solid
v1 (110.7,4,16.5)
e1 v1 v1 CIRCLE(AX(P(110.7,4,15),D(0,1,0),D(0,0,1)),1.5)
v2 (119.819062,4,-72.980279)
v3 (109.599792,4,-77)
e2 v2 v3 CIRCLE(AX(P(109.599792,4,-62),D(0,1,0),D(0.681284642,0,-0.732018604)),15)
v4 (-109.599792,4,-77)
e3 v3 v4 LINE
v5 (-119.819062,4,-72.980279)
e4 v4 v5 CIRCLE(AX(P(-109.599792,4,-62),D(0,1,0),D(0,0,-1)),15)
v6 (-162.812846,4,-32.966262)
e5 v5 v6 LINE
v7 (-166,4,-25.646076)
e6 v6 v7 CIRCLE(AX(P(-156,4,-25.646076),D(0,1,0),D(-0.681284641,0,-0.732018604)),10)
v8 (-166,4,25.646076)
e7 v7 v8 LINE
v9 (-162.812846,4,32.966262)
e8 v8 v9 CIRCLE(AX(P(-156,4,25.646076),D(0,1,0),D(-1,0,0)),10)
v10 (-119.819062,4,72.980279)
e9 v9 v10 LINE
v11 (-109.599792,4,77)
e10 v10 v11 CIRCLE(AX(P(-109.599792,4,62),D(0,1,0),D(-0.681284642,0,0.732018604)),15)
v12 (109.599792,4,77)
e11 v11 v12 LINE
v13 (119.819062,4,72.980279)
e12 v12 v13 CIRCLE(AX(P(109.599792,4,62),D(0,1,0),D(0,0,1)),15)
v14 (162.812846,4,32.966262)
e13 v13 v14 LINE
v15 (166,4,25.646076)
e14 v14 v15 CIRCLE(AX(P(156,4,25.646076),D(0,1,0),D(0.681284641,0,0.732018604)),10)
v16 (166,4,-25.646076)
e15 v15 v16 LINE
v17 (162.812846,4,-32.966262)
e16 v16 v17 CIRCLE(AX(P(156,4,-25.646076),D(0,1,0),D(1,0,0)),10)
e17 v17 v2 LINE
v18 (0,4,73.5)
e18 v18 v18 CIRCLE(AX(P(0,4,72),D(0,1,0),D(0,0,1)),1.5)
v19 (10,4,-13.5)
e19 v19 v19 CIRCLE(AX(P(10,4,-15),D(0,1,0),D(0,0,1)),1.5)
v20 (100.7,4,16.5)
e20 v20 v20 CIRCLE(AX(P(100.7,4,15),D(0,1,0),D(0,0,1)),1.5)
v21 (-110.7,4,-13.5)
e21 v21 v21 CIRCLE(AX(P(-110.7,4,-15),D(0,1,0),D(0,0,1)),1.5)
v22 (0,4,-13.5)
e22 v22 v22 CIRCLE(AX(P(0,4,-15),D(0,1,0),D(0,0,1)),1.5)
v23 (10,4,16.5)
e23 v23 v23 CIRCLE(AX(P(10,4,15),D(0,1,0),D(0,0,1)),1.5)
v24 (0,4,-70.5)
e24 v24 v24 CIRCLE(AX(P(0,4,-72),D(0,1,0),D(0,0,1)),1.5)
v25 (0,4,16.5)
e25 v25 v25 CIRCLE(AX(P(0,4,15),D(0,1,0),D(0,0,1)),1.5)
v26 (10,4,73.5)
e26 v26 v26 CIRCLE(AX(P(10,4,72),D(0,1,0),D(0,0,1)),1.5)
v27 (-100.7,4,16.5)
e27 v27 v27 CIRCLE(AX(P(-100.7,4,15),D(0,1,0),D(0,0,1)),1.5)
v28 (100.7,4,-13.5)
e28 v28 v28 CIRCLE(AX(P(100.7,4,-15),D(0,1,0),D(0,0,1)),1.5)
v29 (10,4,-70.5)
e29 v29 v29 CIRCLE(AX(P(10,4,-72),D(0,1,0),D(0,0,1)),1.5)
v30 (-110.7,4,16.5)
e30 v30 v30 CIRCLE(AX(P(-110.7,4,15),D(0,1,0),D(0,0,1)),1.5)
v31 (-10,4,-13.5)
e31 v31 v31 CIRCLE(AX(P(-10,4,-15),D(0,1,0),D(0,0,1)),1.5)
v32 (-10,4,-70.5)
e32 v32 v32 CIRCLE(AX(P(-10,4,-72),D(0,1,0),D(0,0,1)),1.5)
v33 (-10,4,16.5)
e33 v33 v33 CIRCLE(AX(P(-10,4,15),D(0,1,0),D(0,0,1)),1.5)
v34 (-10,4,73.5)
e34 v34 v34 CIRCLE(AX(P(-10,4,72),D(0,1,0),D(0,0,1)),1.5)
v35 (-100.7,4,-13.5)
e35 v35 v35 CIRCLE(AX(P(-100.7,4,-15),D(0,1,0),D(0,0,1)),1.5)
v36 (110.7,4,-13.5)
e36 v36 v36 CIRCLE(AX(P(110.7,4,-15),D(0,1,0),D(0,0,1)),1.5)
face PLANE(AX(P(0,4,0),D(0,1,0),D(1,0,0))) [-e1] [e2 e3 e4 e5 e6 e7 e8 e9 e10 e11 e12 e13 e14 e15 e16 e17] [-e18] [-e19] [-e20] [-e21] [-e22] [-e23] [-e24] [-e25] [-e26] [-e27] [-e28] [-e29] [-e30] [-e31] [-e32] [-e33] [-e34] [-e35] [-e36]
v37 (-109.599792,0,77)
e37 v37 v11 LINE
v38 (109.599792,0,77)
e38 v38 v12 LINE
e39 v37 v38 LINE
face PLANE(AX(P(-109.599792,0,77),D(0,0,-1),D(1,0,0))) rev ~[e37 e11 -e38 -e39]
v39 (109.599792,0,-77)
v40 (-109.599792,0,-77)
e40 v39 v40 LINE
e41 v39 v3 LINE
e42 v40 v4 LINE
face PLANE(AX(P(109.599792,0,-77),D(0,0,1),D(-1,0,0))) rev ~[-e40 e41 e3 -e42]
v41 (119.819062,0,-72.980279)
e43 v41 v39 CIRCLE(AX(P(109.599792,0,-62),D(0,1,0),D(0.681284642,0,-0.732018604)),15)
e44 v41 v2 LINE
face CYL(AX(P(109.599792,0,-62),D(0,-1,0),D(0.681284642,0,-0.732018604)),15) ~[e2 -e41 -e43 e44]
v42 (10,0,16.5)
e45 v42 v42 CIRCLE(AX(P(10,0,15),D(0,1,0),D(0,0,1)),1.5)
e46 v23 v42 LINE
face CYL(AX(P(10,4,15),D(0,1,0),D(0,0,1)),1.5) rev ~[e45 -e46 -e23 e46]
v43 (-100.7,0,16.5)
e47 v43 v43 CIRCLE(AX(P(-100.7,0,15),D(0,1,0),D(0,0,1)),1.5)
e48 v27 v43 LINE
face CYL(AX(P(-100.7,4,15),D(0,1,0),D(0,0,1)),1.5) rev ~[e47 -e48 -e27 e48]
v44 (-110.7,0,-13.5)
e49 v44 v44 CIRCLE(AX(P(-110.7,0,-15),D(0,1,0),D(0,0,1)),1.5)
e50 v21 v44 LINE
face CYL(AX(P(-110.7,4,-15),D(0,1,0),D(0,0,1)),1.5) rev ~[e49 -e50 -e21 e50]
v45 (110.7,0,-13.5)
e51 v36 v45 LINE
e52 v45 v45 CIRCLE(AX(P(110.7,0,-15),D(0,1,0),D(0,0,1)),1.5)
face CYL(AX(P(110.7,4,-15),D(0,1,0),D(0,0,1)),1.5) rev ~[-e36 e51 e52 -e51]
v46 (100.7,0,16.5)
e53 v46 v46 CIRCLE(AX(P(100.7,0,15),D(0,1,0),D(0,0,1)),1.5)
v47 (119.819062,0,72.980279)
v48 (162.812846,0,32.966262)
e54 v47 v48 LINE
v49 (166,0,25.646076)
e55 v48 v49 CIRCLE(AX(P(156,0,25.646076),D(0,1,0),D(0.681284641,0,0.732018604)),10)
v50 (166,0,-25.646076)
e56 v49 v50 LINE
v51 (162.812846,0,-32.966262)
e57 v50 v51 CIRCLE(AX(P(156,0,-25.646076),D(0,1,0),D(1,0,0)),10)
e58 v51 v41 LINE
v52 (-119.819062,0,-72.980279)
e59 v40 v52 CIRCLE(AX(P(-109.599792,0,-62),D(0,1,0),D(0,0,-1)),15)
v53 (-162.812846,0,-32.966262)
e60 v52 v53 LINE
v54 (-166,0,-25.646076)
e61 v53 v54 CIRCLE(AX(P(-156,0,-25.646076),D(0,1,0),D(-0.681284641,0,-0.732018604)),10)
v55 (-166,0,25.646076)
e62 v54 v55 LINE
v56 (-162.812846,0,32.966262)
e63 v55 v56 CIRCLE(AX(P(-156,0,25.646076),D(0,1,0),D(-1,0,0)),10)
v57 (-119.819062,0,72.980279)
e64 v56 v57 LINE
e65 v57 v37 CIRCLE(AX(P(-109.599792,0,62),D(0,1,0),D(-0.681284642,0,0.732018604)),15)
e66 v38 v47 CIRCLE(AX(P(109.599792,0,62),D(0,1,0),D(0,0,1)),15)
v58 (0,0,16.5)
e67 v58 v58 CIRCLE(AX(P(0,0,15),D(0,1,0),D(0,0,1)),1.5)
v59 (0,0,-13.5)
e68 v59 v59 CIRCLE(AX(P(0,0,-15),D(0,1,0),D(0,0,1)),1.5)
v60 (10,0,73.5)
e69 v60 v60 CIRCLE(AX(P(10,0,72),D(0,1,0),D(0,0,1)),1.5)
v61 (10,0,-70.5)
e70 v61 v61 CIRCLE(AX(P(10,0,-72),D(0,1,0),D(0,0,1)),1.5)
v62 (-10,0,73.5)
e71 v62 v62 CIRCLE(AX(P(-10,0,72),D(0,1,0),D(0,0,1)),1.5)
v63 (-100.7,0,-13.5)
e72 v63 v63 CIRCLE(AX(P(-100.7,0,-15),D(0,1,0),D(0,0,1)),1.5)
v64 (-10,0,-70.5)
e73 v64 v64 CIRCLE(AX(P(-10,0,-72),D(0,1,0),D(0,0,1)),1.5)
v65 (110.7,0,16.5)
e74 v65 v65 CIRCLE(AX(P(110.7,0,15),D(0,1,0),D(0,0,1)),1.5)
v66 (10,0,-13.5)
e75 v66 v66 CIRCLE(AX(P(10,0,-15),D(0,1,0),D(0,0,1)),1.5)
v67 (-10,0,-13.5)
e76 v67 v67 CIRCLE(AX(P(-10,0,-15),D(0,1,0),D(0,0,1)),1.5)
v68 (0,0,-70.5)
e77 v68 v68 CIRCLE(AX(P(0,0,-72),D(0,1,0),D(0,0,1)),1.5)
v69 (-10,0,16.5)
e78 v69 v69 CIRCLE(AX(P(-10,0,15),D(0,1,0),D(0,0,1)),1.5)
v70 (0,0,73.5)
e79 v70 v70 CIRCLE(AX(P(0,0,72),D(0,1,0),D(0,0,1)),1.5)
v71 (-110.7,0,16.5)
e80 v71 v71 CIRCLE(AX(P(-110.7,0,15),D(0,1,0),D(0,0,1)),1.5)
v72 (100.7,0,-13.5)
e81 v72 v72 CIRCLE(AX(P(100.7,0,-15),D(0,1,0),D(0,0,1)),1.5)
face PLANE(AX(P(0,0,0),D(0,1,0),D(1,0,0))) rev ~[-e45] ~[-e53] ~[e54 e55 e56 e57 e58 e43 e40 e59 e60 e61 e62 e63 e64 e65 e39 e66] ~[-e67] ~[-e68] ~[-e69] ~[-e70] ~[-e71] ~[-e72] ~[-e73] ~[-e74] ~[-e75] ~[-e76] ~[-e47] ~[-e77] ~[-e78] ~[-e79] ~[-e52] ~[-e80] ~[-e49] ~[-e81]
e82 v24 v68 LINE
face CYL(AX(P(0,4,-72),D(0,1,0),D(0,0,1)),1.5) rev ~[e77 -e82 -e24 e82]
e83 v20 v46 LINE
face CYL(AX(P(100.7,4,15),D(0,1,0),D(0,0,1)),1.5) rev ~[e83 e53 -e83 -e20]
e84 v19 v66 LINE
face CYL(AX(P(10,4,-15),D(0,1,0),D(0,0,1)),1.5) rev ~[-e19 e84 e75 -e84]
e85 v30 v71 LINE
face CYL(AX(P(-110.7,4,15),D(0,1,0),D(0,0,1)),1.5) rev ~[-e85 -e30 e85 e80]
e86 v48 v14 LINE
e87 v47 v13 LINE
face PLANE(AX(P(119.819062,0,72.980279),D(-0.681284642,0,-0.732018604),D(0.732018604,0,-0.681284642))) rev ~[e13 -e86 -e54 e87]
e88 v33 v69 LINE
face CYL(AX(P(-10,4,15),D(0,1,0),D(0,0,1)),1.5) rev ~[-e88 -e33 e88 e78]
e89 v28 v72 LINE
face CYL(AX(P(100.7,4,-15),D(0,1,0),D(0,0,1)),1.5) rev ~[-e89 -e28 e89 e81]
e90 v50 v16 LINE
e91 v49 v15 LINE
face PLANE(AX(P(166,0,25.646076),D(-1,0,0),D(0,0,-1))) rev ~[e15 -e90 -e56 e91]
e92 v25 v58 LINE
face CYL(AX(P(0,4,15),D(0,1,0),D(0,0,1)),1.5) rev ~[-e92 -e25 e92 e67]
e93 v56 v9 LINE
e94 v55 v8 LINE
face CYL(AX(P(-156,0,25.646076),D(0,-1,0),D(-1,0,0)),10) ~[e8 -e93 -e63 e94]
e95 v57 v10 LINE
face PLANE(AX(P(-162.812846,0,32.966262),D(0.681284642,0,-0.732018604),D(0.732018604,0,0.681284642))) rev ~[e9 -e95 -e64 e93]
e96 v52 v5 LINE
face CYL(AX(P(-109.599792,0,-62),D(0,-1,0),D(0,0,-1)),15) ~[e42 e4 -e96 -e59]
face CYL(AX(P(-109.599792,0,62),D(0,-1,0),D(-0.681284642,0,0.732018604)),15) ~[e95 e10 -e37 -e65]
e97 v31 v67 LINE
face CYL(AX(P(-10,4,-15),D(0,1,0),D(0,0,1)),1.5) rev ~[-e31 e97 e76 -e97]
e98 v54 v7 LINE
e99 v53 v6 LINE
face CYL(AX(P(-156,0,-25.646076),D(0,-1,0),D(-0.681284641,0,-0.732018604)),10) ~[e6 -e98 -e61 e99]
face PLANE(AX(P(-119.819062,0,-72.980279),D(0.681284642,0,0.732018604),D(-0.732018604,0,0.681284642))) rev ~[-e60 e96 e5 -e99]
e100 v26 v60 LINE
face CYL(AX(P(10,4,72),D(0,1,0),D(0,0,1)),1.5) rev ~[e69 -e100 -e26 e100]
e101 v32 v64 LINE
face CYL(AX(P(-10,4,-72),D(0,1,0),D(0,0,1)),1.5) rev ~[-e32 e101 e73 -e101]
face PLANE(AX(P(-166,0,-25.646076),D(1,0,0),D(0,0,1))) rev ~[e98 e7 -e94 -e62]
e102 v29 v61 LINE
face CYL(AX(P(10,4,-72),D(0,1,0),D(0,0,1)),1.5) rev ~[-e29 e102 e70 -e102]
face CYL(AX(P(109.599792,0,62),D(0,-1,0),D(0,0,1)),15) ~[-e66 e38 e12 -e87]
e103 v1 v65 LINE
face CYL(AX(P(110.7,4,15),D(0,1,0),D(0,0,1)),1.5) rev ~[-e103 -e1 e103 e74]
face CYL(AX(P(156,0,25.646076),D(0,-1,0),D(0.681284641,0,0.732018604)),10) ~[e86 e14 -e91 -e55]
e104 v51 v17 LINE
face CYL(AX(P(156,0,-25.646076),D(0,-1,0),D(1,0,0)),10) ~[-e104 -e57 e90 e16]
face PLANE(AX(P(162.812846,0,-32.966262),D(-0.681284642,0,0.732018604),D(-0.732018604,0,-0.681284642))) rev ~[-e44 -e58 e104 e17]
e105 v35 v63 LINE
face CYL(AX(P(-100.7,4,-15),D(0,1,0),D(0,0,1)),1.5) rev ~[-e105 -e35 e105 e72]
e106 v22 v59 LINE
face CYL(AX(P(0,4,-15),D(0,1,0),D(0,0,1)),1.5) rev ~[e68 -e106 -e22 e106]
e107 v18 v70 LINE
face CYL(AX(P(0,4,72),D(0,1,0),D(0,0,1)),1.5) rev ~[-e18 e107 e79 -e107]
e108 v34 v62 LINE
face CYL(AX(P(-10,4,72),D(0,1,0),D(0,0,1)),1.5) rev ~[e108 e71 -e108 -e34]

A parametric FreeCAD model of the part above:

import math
import FreeCAD as App
import Part
import Sketcher
Q = App.Units.Quantity

doc = App.newDocument("Part")
params = doc.addObject("Spreadsheet::Sheet", "Params")
for row, (alias, value) in enumerate([
    ("sketch1_radius", "10 mm"),
    ("sketch1_radius2", "15 mm"),
    ("pad1_length", "4 mm"),
    ("sketch2_diameter", "3 mm"),
], start=1):
    params.set(f"A{row}", alias)
    params.set(f"B{row}", "=" + value)
    params.setAlias(f"B{row}", alias)

body = doc.addObject("PartDesign::Body", "Body")

# Sketch on XZ plane
sketch1 = body.newObject("Sketcher::SketchObject", "Sketch")
sketch1.AttachmentSupport = (doc.getObject("XZ_Plane"), [""])
sketch1.MapMode = "FlatFace"
sketch1.addGeometry([
    Part.LineSegment(App.Vector(-120, -73, 0), App.Vector(-163, -33, 0)),  # 0
    Part.ArcOfCircle(Part.Circle(App.Vector(-156, -26, 0), App.Vector(0, 0, 1), 10), math.radians(180), math.radians(227)),  # 1
    Part.LineSegment(App.Vector(-166, -26, 0), App.Vector(-166, 26, 0)),  # 2
    Part.ArcOfCircle(Part.Circle(App.Vector(-156, 26, 0), App.Vector(0, 0, 1), 10), math.radians(133), math.radians(180)),  # 3
    Part.LineSegment(App.Vector(-163, 33, 0), App.Vector(-120, 73, 0)),  # 4
    Part.ArcOfCircle(Part.Circle(App.Vector(-110, 62, 0), App.Vector(0, 0, 1), 15), math.radians(90), math.radians(133)),  # 5
    Part.LineSegment(App.Vector(-110, 77, 0), App.Vector(110, 77, 0)),  # 6
    Part.ArcOfCircle(Part.Circle(App.Vector(110, 62, 0), App.Vector(0, 0, 1), 15), math.radians(47), math.radians(90)),  # 7
    Part.LineSegment(App.Vector(120, 73, 0), App.Vector(163, 33, 0)),  # 8
    Part.ArcOfCircle(Part.Circle(App.Vector(156, 26, 0), App.Vector(0, 0, 1), 10), math.radians(0), math.radians(47)),  # 9
    Part.LineSegment(App.Vector(166, 26, 0), App.Vector(166, -26, 0)),  # 10
    Part.ArcOfCircle(Part.Circle(App.Vector(156, -26, 0), App.Vector(0, 0, 1), 10), math.radians(-47), math.radians(0)),  # 11
    Part.LineSegment(App.Vector(163, -33, 0), App.Vector(120, -73, 0)),  # 12
    Part.ArcOfCircle(Part.Circle(App.Vector(110, -62, 0), App.Vector(0, 0, 1), 15), math.radians(-90), math.radians(-47)),  # 13
    Part.LineSegment(App.Vector(110, -77, 0), App.Vector(-110, -77, 0)),  # 14
    Part.ArcOfCircle(Part.Circle(App.Vector(-110, -62, 0), App.Vector(0, 0, 1), 15), math.radians(-133), math.radians(-90)),  # 15
], False)
sketch1.addConstraint([
    Sketcher.Constraint("Tangent", 0, 2, 1, 2),
    Sketcher.Constraint("Tangent", 1, 1, 2, 1),
    Sketcher.Constraint("Tangent", 2, 2, 3, 2),
    Sketcher.Constraint("Tangent", 3, 1, 4, 1),
    Sketcher.Constraint("Tangent", 4, 2, 5, 2),
    Sketcher.Constraint("Tangent", 5, 1, 6, 1),
    Sketcher.Constraint("Tangent", 6, 2, 7, 2),
    Sketcher.Constraint("Tangent", 7, 1, 8, 1),
    Sketcher.Constraint("Tangent", 8, 2, 9, 2),
    Sketcher.Constraint("Tangent", 9, 1, 10, 1),
    Sketcher.Constraint("Tangent", 10, 2, 11, 2),
    Sketcher.Constraint("Tangent", 11, 1, 12, 1),
    Sketcher.Constraint("Tangent", 12, 2, 13, 2),
    Sketcher.Constraint("Tangent", 13, 1, 14, 1),
    Sketcher.Constraint("Tangent", 14, 2, 15, 2),
    Sketcher.Constraint("Tangent", 15, 1, 0, 1),
    Sketcher.Constraint("Vertical", 2),
    Sketcher.Constraint("Horizontal", 6),
    Sketcher.Constraint("Vertical", 10),
    Sketcher.Constraint("Horizontal", 14),
    Sketcher.Constraint("Equal", 1, 3),
    Sketcher.Constraint("Equal", 5, 7),
    Sketcher.Constraint("Equal", 3, 9),
    Sketcher.Constraint("Equal", 9, 11),
    Sketcher.Constraint("Equal", 7, 13),
    Sketcher.Constraint("Equal", 13, 15),
    Sketcher.Constraint("Symmetric", 1, 3, 9, 3, -1, 1),
    Sketcher.Constraint("Symmetric", 5, 3, 13, 3, -1, 1),
    Sketcher.Constraint("Symmetric", 4, 2, 7, 1, -2),
    Sketcher.Constraint("Symmetric", 0, 2, 11, 1, -2),
    Sketcher.Constraint("Radius", 1, Q("10 mm")),
    Sketcher.Constraint("Radius", 5, Q("15 mm")),
    Sketcher.Constraint("DistanceX", 1, 3, -1, 1, Q("156 mm")),
    Sketcher.Constraint("DistanceY", -1, 1, 5, 3, Q("62 mm")),
    Sketcher.Constraint("DistanceY", 2, 1, 2, 2, Q("51.292151 mm")),
    Sketcher.Constraint("DistanceX", 6, 1, 6, 2, Q("219.199584 mm")),
])
sketch1.setExpression("Constraints[30]", "Params.sketch1_radius")
sketch1.setExpression("Constraints[31]", "Params.sketch1_radius2")
pad1 = body.newObject("PartDesign::Pad", "Pad")
pad1.Profile = sketch1
pad1.setExpression("Length", "Params.pad1_length")
pad1.Reversed = True

# Sketch on XZ plane
sketch2 = body.newObject("Sketcher::SketchObject", "Sketch001")
sketch2.AttachmentSupport = (doc.getObject("XZ_Plane"), [""])
sketch2.MapMode = "FlatFace"
sketch2.AttachmentOffset = App.Placement(App.Vector(0, 0, -4), App.Rotation())
sketch2.addGeometry([
    Part.Circle(App.Vector(10, 72, 0), App.Vector(0, 0, 1), 1.5),  # 0
    Part.Circle(App.Vector(0, 72, 0), App.Vector(0, 0, 1), 1.5),  # 1
    Part.Circle(App.Vector(-10, 72, 0), App.Vector(0, 0, 1), 1.5),  # 2
    Part.Circle(App.Vector(10, 15, 0), App.Vector(0, 0, 1), 1.5),  # 3
    Part.Circle(App.Vector(0, 15, 0), App.Vector(0, 0, 1), 1.5),  # 4
    Part.Circle(App.Vector(-10, 15, 0), App.Vector(0, 0, 1), 1.5),  # 5
    Part.Circle(App.Vector(10, -15, 0), App.Vector(0, 0, 1), 1.5),  # 6
    Part.Circle(App.Vector(0, -15, 0), App.Vector(0, 0, 1), 1.5),  # 7
    Part.Circle(App.Vector(-10, -15, 0), App.Vector(0, 0, 1), 1.5),  # 8
    Part.Circle(App.Vector(10, -72, 0), App.Vector(0, 0, 1), 1.5),  # 9
    Part.Circle(App.Vector(0, -72, 0), App.Vector(0, 0, 1), 1.5),  # 10
    Part.Circle(App.Vector(-10, -72, 0), App.Vector(0, 0, 1), 1.5),  # 11
    Part.Circle(App.Vector(-100.7, -15, 0), App.Vector(0, 0, 1), 1.5),  # 12
    Part.Circle(App.Vector(-110.7, -15, 0), App.Vector(0, 0, 1), 1.5),  # 13
    Part.Circle(App.Vector(-100.7, 15, 0), App.Vector(0, 0, 1), 1.5),  # 14
    Part.Circle(App.Vector(-110.7, 15, 0), App.Vector(0, 0, 1), 1.5),  # 15
    Part.Circle(App.Vector(100.7, -15, 0), App.Vector(0, 0, 1), 1.5),  # 16
    Part.Circle(App.Vector(110.7, -15, 0), App.Vector(0, 0, 1), 1.5),  # 17
    Part.Circle(App.Vector(100.7, 15, 0), App.Vector(0, 0, 1), 1.5),  # 18
    Part.Circle(App.Vector(110.7, 15, 0), App.Vector(0, 0, 1), 1.5),  # 19
], False)
sketch2.addConstraint([
    Sketcher.Constraint("Equal", 0, 1),
    Sketcher.Constraint("Equal", 1, 2),
    Sketcher.Constraint("Equal", 2, 3),
    Sketcher.Constraint("Equal", 3, 4),
    Sketcher.Constraint("Equal", 4, 5),
    Sketcher.Constraint("Equal", 5, 6),
    Sketcher.Constraint("Equal", 6, 7),
    Sketcher.Constraint("Equal", 7, 8),
    Sketcher.Constraint("Equal", 8, 9),
    Sketcher.Constraint("Equal", 9, 10),
    Sketcher.Constraint("Equal", 10, 11),
    Sketcher.Constraint("Equal", 11, 12),
    Sketcher.Constraint("Equal", 12, 13),
    Sketcher.Constraint("Equal", 13, 14),
    Sketcher.Constraint("Equal", 14, 15),
    Sketcher.Constraint("Equal", 15, 16),
    Sketcher.Constraint("Equal", 16, 17),
    Sketcher.Constraint("Equal", 17, 18),
    Sketcher.Constraint("Equal", 18, 19),
    Sketcher.Constraint("Symmetric", 5, 3, 6, 3, -1, 1),
    Sketcher.Constraint("Symmetric", 4, 3, 7, 3, -1, 1),
    Sketcher.Constraint("Symmetric", 3, 3, 8, 3, -1, 1),
    Sketcher.Constraint("Symmetric", 2, 3, 9, 3, -1, 1),
    Sketcher.Constraint("Symmetric", 1, 3, 10, 3, -1, 1),
    Sketcher.Constraint("Symmetric", 0, 3, 11, 3, -1, 1),
    Sketcher.Constraint("Symmetric", 14, 3, 16, 3, -1, 1),
    Sketcher.Constraint("Symmetric", 15, 3, 17, 3, -1, 1),
    Sketcher.Constraint("Symmetric", 12, 3, 18, 3, -1, 1),
    Sketcher.Constraint("Symmetric", 13, 3, 19, 3, -1, 1),
    Sketcher.Constraint("Symmetric", 0, 3, 2, 3, -2),
    Sketcher.Constraint("Symmetric", 3, 3, 5, 3, -2),
    Sketcher.Constraint("Symmetric", 12, 3, 16, 3, -2),
    Sketcher.Constraint("Symmetric", 13, 3, 17, 3, -2),
    Sketcher.Constraint("PointOnObject", 1, 3, -2),
    Sketcher.Constraint("PointOnObject", 4, 3, -2),
    Sketcher.Constraint("Horizontal", 0, 3, 1, 3),
    Sketcher.Constraint("Horizontal", 3, 3, 4, 3),
    Sketcher.Constraint("Horizontal", 8, 3, 12, 3),
    Sketcher.Constraint("Horizontal", 12, 3, 13, 3),
    Sketcher.Constraint("Vertical", 0, 3, 3, 3),
    Sketcher.Constraint("Diameter", 0, Q("3 mm")),
    Sketcher.Constraint("DistanceX", -1, 1, 0, 3, Q("10 mm")),
    Sketcher.Constraint("DistanceY", -1, 1, 0, 3, Q("72 mm")),
    Sketcher.Constraint("DistanceY", -1, 1, 3, 3, Q("15 mm")),
    Sketcher.Constraint("DistanceX", 13, 3, 12, 3, Q("10 mm")),
    Sketcher.Constraint("DistanceX", 12, 3, -1, 1, Q("100.7 mm")),
])
sketch2.setExpression("Constraints[40]", "Params.sketch2_diameter")
pocket1 = body.newObject("PartDesign::Pocket", "Pocket")
pocket1.Profile = sketch2
pocket1.Type = "ThroughAll"
pocket1.Reversed = True

doc.recompute()
